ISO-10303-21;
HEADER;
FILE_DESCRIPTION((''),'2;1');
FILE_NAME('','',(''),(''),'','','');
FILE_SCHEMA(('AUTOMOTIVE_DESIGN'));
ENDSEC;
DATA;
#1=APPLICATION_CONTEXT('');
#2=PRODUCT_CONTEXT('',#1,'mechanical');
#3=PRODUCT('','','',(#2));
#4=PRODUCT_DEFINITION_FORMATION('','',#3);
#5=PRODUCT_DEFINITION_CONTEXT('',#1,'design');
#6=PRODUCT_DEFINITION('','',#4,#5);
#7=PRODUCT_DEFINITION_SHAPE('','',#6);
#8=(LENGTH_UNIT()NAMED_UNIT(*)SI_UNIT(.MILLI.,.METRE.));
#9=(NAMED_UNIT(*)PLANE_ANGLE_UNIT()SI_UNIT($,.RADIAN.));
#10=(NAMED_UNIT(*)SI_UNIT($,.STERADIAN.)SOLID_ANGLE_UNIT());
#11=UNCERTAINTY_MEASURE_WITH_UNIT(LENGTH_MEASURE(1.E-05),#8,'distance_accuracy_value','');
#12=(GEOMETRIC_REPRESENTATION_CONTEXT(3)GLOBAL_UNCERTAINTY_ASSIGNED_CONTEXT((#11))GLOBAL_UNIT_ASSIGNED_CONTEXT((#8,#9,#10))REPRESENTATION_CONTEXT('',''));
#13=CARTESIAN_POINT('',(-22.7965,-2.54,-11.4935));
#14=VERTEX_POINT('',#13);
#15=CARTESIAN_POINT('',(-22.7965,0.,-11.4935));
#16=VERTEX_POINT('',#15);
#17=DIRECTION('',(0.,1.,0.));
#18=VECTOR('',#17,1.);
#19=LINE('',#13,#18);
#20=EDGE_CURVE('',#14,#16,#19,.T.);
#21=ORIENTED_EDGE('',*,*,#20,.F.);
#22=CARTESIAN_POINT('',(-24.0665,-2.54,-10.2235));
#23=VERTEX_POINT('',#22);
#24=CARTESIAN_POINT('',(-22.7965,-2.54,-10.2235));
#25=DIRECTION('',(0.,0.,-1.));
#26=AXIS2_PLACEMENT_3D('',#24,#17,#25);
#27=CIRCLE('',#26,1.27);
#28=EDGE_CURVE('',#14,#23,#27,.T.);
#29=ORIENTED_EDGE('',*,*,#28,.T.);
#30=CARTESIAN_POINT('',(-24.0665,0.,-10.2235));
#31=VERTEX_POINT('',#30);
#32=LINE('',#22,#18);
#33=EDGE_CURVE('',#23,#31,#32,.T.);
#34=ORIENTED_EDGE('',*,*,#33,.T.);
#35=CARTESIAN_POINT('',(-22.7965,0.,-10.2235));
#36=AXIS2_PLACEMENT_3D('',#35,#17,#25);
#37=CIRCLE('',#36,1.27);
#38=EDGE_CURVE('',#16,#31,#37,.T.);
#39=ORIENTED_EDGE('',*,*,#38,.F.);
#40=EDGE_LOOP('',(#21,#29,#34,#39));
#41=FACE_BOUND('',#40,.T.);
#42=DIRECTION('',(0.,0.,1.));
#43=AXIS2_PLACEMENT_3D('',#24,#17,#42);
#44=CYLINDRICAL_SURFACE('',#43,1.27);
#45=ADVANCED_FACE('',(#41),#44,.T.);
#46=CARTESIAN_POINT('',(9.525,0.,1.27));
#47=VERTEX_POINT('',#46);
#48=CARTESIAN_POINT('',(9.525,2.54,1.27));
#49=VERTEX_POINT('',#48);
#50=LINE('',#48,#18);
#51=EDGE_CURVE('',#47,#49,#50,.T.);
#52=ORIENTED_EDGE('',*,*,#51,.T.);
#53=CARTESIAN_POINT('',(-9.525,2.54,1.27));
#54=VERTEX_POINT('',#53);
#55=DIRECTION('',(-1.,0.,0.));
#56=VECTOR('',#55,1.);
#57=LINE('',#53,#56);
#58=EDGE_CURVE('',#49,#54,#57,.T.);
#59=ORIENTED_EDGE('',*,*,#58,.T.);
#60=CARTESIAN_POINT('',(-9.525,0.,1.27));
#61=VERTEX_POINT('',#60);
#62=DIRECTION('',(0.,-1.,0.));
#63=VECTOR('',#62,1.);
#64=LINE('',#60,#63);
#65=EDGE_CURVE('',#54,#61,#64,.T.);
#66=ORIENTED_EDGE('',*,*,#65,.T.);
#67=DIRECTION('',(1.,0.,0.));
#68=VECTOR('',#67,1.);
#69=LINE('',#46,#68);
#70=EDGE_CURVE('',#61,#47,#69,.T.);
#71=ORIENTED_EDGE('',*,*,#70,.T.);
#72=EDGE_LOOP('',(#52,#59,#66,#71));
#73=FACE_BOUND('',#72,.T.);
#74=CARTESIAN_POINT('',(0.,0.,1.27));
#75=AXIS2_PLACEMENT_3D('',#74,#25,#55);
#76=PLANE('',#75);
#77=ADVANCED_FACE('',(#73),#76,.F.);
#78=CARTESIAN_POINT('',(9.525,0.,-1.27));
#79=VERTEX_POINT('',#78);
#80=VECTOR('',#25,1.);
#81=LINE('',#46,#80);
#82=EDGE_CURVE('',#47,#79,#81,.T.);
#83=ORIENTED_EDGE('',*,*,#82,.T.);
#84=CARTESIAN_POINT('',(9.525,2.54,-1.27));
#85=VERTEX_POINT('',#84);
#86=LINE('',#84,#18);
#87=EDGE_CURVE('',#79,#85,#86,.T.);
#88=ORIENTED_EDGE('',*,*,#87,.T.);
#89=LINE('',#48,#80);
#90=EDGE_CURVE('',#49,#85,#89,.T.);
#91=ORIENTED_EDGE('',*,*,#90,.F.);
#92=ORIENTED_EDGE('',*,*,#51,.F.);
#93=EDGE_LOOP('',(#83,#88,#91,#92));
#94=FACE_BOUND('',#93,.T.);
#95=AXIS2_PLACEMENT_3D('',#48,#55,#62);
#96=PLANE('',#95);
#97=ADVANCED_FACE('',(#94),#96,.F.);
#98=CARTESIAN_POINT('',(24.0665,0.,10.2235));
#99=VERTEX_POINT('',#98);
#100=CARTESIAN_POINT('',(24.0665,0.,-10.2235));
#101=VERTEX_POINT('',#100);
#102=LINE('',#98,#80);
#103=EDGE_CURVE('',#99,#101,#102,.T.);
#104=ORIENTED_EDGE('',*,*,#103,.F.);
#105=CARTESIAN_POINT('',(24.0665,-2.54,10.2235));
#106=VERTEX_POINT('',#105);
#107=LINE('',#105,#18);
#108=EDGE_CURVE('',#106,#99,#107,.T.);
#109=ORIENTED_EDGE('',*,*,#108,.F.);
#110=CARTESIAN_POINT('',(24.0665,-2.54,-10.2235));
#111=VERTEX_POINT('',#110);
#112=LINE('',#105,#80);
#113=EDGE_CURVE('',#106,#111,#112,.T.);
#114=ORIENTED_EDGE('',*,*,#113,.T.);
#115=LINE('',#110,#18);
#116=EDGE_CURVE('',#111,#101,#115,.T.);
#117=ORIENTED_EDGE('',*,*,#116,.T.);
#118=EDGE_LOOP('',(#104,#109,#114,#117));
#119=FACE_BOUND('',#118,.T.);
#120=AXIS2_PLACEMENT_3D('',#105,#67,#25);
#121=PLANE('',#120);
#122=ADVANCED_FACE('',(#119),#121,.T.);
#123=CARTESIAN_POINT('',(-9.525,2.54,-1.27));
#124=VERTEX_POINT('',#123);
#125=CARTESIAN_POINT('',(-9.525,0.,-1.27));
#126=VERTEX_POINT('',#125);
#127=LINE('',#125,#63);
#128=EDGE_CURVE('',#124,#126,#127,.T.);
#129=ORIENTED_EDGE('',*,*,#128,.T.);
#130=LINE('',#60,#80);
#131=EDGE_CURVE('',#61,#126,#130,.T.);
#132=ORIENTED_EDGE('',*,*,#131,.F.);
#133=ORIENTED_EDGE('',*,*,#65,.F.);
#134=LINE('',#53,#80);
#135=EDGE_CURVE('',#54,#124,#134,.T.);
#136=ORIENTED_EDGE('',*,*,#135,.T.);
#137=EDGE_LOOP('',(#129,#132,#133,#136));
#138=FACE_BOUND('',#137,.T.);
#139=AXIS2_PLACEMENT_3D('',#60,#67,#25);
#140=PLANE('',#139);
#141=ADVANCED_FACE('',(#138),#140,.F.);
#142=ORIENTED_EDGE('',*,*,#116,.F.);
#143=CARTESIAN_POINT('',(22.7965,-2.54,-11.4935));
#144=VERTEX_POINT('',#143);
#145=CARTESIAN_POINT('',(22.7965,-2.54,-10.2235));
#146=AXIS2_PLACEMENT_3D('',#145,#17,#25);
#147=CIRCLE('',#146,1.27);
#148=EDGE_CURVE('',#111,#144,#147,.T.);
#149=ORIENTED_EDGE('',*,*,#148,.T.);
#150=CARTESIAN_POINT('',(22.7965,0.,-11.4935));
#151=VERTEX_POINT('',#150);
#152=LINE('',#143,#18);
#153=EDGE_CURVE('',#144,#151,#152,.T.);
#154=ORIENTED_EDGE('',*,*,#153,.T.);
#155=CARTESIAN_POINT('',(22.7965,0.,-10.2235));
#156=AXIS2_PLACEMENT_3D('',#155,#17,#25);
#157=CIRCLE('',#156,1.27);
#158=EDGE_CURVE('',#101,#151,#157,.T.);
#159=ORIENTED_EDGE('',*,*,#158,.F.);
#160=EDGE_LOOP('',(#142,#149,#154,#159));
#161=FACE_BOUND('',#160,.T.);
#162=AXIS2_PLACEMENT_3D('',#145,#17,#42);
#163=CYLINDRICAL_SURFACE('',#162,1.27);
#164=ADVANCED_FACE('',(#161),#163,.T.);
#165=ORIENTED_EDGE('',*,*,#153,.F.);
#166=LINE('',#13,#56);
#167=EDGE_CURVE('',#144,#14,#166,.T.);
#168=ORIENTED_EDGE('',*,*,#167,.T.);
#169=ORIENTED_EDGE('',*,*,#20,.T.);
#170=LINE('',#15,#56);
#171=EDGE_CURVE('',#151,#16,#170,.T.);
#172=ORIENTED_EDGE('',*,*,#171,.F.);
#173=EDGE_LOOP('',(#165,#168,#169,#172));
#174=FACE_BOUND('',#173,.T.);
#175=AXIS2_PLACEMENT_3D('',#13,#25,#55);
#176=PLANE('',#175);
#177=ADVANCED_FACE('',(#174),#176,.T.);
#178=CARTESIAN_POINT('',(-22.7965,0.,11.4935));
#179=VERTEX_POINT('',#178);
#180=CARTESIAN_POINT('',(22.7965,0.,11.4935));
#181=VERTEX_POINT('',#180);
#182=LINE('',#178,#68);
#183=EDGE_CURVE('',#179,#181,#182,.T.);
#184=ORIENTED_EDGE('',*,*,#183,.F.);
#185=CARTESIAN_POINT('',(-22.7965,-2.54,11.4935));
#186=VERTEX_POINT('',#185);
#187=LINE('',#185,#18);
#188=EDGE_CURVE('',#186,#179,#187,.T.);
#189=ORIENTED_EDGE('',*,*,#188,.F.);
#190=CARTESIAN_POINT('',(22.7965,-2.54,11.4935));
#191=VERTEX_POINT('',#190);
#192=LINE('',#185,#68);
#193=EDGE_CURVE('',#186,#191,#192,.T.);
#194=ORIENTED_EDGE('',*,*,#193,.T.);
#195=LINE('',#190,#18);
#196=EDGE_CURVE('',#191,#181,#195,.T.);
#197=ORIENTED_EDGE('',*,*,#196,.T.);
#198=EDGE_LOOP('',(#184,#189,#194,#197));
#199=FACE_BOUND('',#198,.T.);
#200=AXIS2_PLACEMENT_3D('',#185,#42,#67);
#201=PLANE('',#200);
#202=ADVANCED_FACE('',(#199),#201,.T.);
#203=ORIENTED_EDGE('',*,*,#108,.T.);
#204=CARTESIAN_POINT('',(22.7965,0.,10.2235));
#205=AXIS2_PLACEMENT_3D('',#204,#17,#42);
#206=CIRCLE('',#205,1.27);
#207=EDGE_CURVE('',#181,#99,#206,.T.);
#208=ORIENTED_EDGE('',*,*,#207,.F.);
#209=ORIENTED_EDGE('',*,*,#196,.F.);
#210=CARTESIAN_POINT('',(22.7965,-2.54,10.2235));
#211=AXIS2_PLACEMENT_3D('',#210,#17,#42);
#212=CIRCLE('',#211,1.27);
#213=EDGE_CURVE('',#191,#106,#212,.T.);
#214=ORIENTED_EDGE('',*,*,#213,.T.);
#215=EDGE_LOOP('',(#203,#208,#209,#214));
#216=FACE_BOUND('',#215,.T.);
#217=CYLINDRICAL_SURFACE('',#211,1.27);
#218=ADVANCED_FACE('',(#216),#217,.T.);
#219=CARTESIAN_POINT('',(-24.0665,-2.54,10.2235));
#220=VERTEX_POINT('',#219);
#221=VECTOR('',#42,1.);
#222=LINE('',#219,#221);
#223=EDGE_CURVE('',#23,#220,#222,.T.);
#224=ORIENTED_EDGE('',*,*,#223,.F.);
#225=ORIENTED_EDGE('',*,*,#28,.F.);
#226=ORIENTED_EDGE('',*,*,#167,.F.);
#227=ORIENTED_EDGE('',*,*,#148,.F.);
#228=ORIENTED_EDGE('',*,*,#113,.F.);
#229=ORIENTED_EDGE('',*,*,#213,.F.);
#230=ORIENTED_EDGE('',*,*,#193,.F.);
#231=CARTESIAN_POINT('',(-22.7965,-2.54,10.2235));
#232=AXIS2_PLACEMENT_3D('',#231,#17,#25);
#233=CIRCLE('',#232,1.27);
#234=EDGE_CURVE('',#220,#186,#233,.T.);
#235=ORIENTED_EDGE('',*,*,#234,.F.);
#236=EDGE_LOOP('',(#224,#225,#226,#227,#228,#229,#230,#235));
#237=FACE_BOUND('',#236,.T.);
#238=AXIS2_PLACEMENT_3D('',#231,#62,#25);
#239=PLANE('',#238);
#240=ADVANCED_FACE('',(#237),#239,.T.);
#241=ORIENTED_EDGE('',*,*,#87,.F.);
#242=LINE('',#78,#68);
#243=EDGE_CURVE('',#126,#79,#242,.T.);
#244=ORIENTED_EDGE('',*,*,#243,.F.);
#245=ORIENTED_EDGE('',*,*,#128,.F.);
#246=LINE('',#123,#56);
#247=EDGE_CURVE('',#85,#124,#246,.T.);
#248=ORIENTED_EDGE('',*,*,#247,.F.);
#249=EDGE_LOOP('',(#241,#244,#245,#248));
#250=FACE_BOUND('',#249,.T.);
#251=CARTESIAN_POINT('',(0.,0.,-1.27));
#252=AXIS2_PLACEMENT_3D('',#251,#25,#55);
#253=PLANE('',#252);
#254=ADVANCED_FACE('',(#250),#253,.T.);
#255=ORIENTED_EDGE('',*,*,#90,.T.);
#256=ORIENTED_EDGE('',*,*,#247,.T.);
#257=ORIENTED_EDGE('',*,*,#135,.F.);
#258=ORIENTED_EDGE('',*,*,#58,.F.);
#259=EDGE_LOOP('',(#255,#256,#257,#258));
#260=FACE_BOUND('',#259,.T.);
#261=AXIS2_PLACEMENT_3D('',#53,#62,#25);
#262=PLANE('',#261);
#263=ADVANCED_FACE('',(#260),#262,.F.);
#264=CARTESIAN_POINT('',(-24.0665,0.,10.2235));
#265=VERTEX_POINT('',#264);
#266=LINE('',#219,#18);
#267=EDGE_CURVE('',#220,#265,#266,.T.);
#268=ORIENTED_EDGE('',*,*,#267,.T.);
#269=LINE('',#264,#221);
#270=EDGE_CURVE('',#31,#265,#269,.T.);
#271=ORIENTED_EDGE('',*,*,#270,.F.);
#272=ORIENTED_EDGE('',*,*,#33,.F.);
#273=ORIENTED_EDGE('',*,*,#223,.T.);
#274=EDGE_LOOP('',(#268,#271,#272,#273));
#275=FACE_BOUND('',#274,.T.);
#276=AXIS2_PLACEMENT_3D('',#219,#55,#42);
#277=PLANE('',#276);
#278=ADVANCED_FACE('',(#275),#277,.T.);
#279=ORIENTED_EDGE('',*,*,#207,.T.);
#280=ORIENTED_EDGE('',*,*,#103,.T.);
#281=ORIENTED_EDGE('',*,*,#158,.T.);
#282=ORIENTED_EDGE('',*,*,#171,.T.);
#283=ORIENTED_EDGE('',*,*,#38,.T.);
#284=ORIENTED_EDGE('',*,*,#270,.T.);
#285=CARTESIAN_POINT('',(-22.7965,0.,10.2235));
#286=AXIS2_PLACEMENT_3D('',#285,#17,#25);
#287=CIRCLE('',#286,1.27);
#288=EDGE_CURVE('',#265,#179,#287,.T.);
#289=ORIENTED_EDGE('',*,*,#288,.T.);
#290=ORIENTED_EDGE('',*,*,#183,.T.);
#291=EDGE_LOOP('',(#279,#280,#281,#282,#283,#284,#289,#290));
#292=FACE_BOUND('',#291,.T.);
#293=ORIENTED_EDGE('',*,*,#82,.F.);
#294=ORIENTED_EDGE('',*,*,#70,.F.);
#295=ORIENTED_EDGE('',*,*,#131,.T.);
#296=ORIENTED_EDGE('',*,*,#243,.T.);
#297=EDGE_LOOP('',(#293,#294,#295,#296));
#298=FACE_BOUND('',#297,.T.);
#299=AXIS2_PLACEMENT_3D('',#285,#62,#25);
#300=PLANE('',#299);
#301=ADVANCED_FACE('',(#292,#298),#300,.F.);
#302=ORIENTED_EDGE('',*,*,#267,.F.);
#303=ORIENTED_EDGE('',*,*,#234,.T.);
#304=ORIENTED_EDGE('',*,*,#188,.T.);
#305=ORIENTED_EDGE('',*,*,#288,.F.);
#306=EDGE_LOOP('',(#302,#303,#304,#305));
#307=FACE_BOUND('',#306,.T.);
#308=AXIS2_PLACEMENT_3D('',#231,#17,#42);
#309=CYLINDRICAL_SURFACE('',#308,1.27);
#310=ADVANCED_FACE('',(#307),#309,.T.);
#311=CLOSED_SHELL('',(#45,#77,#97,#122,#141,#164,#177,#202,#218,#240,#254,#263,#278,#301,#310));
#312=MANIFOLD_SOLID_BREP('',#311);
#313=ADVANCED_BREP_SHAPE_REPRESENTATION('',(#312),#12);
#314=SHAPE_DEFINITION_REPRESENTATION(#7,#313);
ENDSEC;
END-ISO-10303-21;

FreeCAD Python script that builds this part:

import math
import FreeCAD as App
import Part
import Sketcher

V = App.Vector
Q = App.Units.Quantity

doc = App.newDocument("Part")
body = doc.addObject("PartDesign::Body", "Body")

# Sketch on XZ plane
sketch1 = body.newObject("Sketcher::SketchObject", "Sketch")
sketch1.AttachmentSupport = (doc.getObject("XZ_Plane"), [""])
sketch1.MapMode = "FlatFace"
sketch1.addGeometry([
    Part.LineSegment(V(-22.8, 11.5, 0), V(22.8, 11.5, 0)),  # 0
    Part.ArcOfCircle(Part.Circle(V(22.8, 10.2, 0), V(0, 0, 1), 1.3), math.radians(0), math.radians(90)),  # 1
    Part.LineSegment(V(24.1, 10.2, 0), V(24.1, -10.2, 0)),  # 2
    Part.ArcOfCircle(Part.Circle(V(22.8, -10.2, 0), V(0, 0, 1), 1.3), math.radians(-90), math.radians(0)),  # 3
    Part.LineSegment(V(22.8, -11.5, 0), V(-22.8, -11.5, 0)),  # 4
    Part.ArcOfCircle(Part.Circle(V(-22.8, -10.2, 0), V(0, 0, 1), 1.3), math.radians(180), math.radians(270)),  # 5
    Part.LineSegment(V(-24.1, -10.2, 0), V(-24.1, 10.2, 0)),  # 6
    Part.ArcOfCircle(Part.Circle(V(-22.8, 10.2, 0), V(0, 0, 1), 1.3), math.radians(90), math.radians(180)),  # 7
], False)
sketch1.addConstraint([
    Sketcher.Constraint("Tangent", 0, 2, 1, 2),
    Sketcher.Constraint("Tangent", 1, 1, 2, 1),
    Sketcher.Constraint("Tangent", 2, 2, 3, 2),
    Sketcher.Constraint("Tangent", 3, 1, 4, 1),
    Sketcher.Constraint("Tangent", 4, 2, 5, 2),
    Sketcher.Constraint("Tangent", 5, 1, 6, 1),
    Sketcher.Constraint("Tangent", 6, 2, 7, 2),
    Sketcher.Constraint("Tangent", 7, 1, 0, 1),
    Sketcher.Constraint("Horizontal", 0),
    Sketcher.Constraint("Vertical", 2),
    Sketcher.Constraint("Horizontal", 4),
    Sketcher.Constraint("Vertical", 6),
    Sketcher.Constraint("Equal", 1, 3),
    Sketcher.Constraint("Equal", 3, 5),
    Sketcher.Constraint("Equal", 5, 7),
    Sketcher.Constraint("Symmetric", 1, 3, 5, 3, -1, 1),
    Sketcher.Constraint("Radius", 1, Q("0.05 in")),
    Sketcher.Constraint("DistanceX", 0, 1, 0, 2, Q("1.795 in")),
    Sketcher.Constraint("DistanceY", 2, 2, 2, 1, Q("0.805 in")),
])
pad1 = body.newObject("PartDesign::Pad", "Pad")
pad1.Profile = sketch1
pad1.Length = Q("0.1 in")

# Sketch on XY plane
sketch2 = body.newObject("Sketcher::SketchObject", "Sketch001")
sketch2.AttachmentSupport = (doc.getObject("XY_Plane"), [""])
sketch2.MapMode = "FlatFace"
sketch2.addGeometry([
    Part.LineSegment(V(-9.5, 2.5, 0), V(-9.5, 0, 0)),
    Part.LineSegment(V(-9.5, 0, 0), V(9.5, 0, 0)),
    Part.LineSegment(V(9.5, 0, 0), V(9.5, 2.5, 0)),
    Part.LineSegment(V(9.5, 2.5, 0), V(-9.5, 2.5, 0)),
], False)
sketch2.addConstraint([
    Sketcher.Constraint("Coincident", 0, 2, 1, 1),
    Sketcher.Constraint("Coincident", 1, 2, 2, 1),
    Sketcher.Constraint("Coincident", 2, 2, 3, 1),
    Sketcher.Constraint("Coincident", 3, 2, 0, 1),
    Sketcher.Constraint("Vertical", 0),
    Sketcher.Constraint("Horizontal", 1),
    Sketcher.Constraint("Vertical", 2),
    Sketcher.Constraint("Horizontal", 3),
    Sketcher.Constraint("Symmetric", 0, 2, 1, 2, -1, 1),
    Sketcher.Constraint("DistanceY", 0, 2, 0, 1, Q("0.1 in")),
    Sketcher.Constraint("DistanceX", 1, 1, 1, 2, Q("0.75 in")),
])
pad2 = body.newObject("PartDesign::Pad", "Pad001")
pad2.Profile = sketch2
pad2.Length = Q("0.1 in")
pad2.Midplane = True

doc.recompute()
